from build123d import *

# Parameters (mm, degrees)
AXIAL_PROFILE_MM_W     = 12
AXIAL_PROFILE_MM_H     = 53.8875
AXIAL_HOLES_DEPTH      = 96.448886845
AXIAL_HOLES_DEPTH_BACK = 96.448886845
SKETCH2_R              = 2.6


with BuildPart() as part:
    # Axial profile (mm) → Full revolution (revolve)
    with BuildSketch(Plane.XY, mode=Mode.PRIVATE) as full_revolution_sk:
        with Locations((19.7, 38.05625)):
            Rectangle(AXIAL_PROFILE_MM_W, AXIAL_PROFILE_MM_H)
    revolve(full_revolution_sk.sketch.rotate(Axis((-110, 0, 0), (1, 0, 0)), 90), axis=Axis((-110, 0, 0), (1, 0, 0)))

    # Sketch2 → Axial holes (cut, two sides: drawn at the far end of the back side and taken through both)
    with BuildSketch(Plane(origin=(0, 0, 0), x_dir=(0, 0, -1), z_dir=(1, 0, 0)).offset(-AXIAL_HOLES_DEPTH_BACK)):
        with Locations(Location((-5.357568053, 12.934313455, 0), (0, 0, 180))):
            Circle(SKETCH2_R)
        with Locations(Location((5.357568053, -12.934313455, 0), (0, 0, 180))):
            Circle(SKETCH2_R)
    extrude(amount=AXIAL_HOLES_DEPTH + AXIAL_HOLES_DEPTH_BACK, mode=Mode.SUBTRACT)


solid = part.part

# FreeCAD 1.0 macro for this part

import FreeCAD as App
import Part
import Sketcher

V = App.Vector
Q = App.Units.Quantity


def add_polygon(sketch, points):
    """Adds a closed chain of lines whose ends are joined by coincident constraints."""
    first, n = sketch.GeometryCount, len(points)
    for a, b in zip(points, points[1:] + points[:1]):
        sketch.addGeometry(Part.LineSegment(App.Vector(*a, 0), App.Vector(*b, 0)), False)
    for i in range(n):
        sketch.addConstraint(Sketcher.Constraint("Coincident", first + i, 2, first + (i + 1) % n, 1))

doc = App.newDocument("Part")
body = doc.addObject("PartDesign::Body", "Body")

# Sketch on XY plane
sketch1 = body.newObject("Sketcher::SketchObject", "Sketch")
sketch1.AttachmentSupport = (doc.getObject("XY_Plane"), [""])
sketch1.MapMode = "FlatFace"
add_polygon(sketch1, [(14, 65), (14, 11), (26, 11), (26, 65)])  # lines 0-3
sketch1.addConstraint([
    Sketcher.Constraint("Vertical", 0),
    Sketcher.Constraint("Horizontal", 1),
    Sketcher.Constraint("Vertical", 2),
    Sketcher.Constraint("Horizontal", 3),
    Sketcher.Constraint("DistanceX", 1, 1, 1, 2, Q("12 mm")),
    Sketcher.Constraint("DistanceY", -1, 1, 2, 2, Q("65 mm")),
    Sketcher.Constraint("DistanceX", -1, 1, 0, 2, Q("13.7 mm")),
    Sketcher.Constraint("DistanceY", 0, 2, 0, 1, Q("53.8875 mm")),
])
revolution = body.newObject("PartDesign::Revolution", "Revolution")
revolution.Profile = sketch1
revolution.ReferenceAxis = (sketch1, ["H_Axis"])
revolution.Angle = 360

# Sketch on YZ plane
sketch2 = body.newObject("Sketcher::SketchObject", "Sketch001")
sketch2.AttachmentSupport = (doc.getObject("YZ_Plane"), [""])
sketch2.MapMode = "FlatFace"
sketch2.addGeometry([
    Part.Circle(V(12.9, 5.4, 0), V(0, 0, 1), 2.6),
    Part.Circle(V(-12.9, -5.4, 0), V(0, 0, 1), 2.6),
], False)
sketch2.addConstraint([
    Sketcher.Constraint("Equal", 0, 1),
    Sketcher.Constraint("Symmetric", 0, 3, 1, 3, -1, 1),
    Sketcher.Constraint("Diameter", 0, Q("5.2 mm")),
    Sketcher.Constraint("DistanceY", -1, 1, 0, 3, Q("5.357568 mm")),
    Sketcher.Constraint("DistanceX", -1, 1, 0, 3, Q("12.934313 mm")),
])
pocket1 = body.newObject("PartDesign::Pocket", "Pocket")
pocket1.Profile = sketch2
pocket1.Type = "ThroughAll"
pocket1.Midplane = True

doc.recompute()
